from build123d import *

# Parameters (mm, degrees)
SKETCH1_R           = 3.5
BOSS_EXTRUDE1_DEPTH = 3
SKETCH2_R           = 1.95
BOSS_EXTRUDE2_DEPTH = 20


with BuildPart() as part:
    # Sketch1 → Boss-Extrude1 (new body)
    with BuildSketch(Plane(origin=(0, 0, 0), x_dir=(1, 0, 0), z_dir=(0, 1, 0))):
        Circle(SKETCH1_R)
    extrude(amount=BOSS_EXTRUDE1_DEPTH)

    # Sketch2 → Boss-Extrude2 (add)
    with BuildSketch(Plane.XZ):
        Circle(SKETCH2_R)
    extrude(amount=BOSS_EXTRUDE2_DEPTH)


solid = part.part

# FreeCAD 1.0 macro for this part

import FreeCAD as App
import Part
import Sketcher
from FreeCAD import Vector

doc = App.newDocument("Part")
params = doc.addObject("Spreadsheet::Sheet", "Params")
for row, (alias, value) in enumerate([
    ("sketch1_diameter", "7 mm"),
    ("pad1_length", "3 mm"),
    ("sketch2_diameter", "3.9 mm"),
    ("pad2_length", "20 mm"),
], start=1):
    params.set(f"A{row}", alias)
    params.set(f"B{row}", "=" + value)
    params.setAlias(f"B{row}", alias)

body = doc.addObject("PartDesign::Body", "Body")

sketch1 = doc.addObject("Sketcher::SketchObject", "Sketch")
body.addObject(sketch1)
sketch1.AttachmentSupport = (doc.XZ_Plane, [""])
sketch1.MapMode = "FlatFace"
sketch1.addGeometry(Part.Circle(Vector(0, 0, 0), Vector(0, 0, 1), 3.5), False)
sketch1.addConstraint([
    Sketcher.Constraint("Coincident", 0, 3, -1, 1),
    Sketcher.Constraint("Diameter", 0, 7.0),
])
sketch1.setExpression("Constraints[1]", "Params.sketch1_diameter")
pad1 = doc.addObject("PartDesign::Pad", "Pad")
body.addObject(pad1)
pad1.Profile = sketch1
pad1.setExpression("Length", "Params.pad1_length")
pad1.Reversed = True

sketch2 = doc.addObject("Sketcher::SketchObject", "Sketch001")
body.addObject(sketch2)
sketch2.AttachmentSupport = (doc.XZ_Plane, [""])
sketch2.MapMode = "FlatFace"
sketch2.addGeometry(Part.Circle(Vector(0, 0, 0), Vector(0, 0, 1), 1.9), False)
sketch2.addConstraint([
    Sketcher.Constraint("Coincident", 0, 3, -1, 1),
    Sketcher.Constraint("Diameter", 0, 3.9),
])
sketch2.setExpression("Constraints[1]", "Params.sketch2_diameter")
pad2 = doc.addObject("PartDesign::Pad", "Pad001")
body.addObject(pad2)
pad2.Profile = sketch2
pad2.setExpression("Length", "Params.pad2_length")

doc.recompute()
